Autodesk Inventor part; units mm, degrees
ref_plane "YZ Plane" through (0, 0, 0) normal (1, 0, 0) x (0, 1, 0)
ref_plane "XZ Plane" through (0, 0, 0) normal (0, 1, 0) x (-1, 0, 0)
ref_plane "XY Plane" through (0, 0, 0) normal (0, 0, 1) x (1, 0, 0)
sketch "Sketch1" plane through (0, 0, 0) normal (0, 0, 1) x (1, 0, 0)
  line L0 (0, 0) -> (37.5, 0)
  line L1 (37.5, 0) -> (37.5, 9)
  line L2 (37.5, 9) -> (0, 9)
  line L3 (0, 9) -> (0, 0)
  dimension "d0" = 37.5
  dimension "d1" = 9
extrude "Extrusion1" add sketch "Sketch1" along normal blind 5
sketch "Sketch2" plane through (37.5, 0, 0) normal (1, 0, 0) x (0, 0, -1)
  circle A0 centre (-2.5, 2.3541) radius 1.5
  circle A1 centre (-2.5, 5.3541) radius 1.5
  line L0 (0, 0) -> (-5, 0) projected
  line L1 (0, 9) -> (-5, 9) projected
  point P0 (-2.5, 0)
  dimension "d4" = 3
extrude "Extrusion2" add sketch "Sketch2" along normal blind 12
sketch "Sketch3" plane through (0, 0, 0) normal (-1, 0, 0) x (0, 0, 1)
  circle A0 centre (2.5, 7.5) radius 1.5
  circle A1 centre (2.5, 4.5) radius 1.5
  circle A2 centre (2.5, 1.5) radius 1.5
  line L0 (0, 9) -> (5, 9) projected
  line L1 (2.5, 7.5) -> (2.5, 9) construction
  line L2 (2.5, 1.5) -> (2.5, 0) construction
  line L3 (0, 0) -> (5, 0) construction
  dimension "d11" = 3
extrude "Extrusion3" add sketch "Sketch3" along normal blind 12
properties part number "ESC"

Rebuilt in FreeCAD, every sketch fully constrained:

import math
import FreeCAD as App
import Part
import Sketcher
from FreeCAD import Vector


def add_polygon(sketch, points):
    """Adds a closed chain of lines whose ends are joined by coincident constraints."""
    first, n = sketch.GeometryCount, len(points)
    for a, b in zip(points, points[1:] + points[:1]):
        sketch.addGeometry(Part.LineSegment(App.Vector(*a, 0), App.Vector(*b, 0)), False)
    for i in range(n):
        sketch.addConstraint(Sketcher.Constraint("Coincident", first + i, 2, first + (i + 1) % n, 1))

doc = App.newDocument("Part")
params = doc.addObject("Spreadsheet::Sheet", "Params")
for row, (alias, value) in enumerate([
    ("sketch1_height", "9 mm"),
    ("sketch1_width", "37.5 mm"),
    ("pad1_length", "5 mm"),
    ("sketch2_diameter", "3 mm"),
    ("pad2_length", "12 mm"),
    ("sketch3_diameter", "3 mm"),
    ("pad3_length", "12 mm"),
], start=1):
    params.set(f"A{row}", alias)
    params.set(f"B{row}", "=" + value)
    params.setAlias(f"B{row}", alias)

body = doc.addObject("PartDesign::Body", "Body")

sketch1 = body.newObject("Sketcher::SketchObject", "Sketch")
sketch1.AttachmentSupport = (doc.getObject("XY_Plane"), [""])
sketch1.MapMode = "FlatFace"
add_polygon(sketch1, [(0, 9), (0, 0), (37.5, 0), (37.5, 9)])
sketch1.addConstraint([
    Sketcher.Constraint("Vertical", 0),
    Sketcher.Constraint("Horizontal", 1),
    Sketcher.Constraint("Vertical", 2),
    Sketcher.Constraint("Horizontal", 3),
    Sketcher.Constraint("Coincident", 0, 2, -1, 1),
    Sketcher.Constraint("DistanceY", 0, 2, 0, 1, 9.0),
    Sketcher.Constraint("DistanceX", 1, 1, 1, 2, 37.5),
])
sketch1.setExpression("Constraints[9]", "Params.sketch1_height")
sketch1.setExpression("Constraints[10]", "Params.sketch1_width")
pad1 = body.newObject("PartDesign::Pad", "Pad")
pad1.Profile = sketch1
pad1.setExpression("Length", "Params.pad1_length")

sketch2 = body.newObject("Sketcher::SketchObject", "Sketch001")
sketch2.AttachmentSupport = (doc.getObject("YZ_Plane"), [""])
sketch2.MapMode = "FlatFace"
sketch2.AttachmentOffset = App.Placement(Vector(0, 0, 37.5), App.Rotation())
sketch2.addGeometry([
    Part.Circle(Vector(2.3541, 2.5, 0), Vector(0, 0, 1), 1.5),
    Part.Circle(Vector(5.3541, 2.5, 0), Vector(0, 0, 1), 1.5),
], False)
sketch2.addConstraint([
    Sketcher.Constraint("Equal", 0, 1),
    Sketcher.Constraint("Horizontal", 0, 3, 1, 3),
    Sketcher.Constraint("Diameter", 0, 3.0),
    Sketcher.Constraint("DistanceX", 0, 3, 1, 3, 3.0),
    Sketcher.Constraint("DistanceY", -1, 1, 0, 3, 2.5),
    Sketcher.Constraint("DistanceX", -1, 1, 0, 3, 2.354),
])
sketch2.setExpression("Constraints[2]", "Params.sketch2_diameter")
pad2 = body.newObject("PartDesign::Pad", "Pad001")
pad2.Profile = sketch2
pad2.setExpression("Length", "Params.pad2_length")

sketch3 = body.newObject("Sketcher::SketchObject", "Sketch002")
sketch3.AttachmentSupport = (doc.getObject("YZ_Plane"), [""])
sketch3.MapMode = "FlatFace"
sketch3.addGeometry([
    Part.Circle(Vector(7.5, 2.5, 0), Vector(0, 0, 1), 1.5),
    Part.Circle(Vector(1.5, 2.5, 0), Vector(0, 0, 1), 1.5),
    Part.ArcOfCircle(Part.Circle(Vector(4.5, 2.5, 0), Vector(0, 0, 1), 1.5), math.radians(0), math.radians(180)),
    Part.ArcOfCircle(Part.Circle(Vector(4.5, 2.5, 0), Vector(0, 0, 1), 1.5), math.radians(180), math.radians(360)),
], False)
sketch3.addConstraint([
    Sketcher.Constraint("Tangent", 2, 1, 3, 2),
    Sketcher.Constraint("Coincident", 3, 1, 2, 2),
    Sketcher.Constraint("Equal", 0, 1),
    Sketcher.Constraint("Equal", 1, 2),
    Sketcher.Constraint("Horizontal", 0, 3, 1, 3),
    Sketcher.Constraint("Horizontal", 1, 3, 2, 3),
    Sketcher.Constraint("Horizontal", 3, 3, 2, 1),
    Sketcher.Constraint("Horizontal", 2, 1, 3, 1),
    Sketcher.Constraint("Diameter", 0, 3.0),
    Sketcher.Constraint("DistanceX", -1, 1, 3, 1, 3.0),
    Sketcher.Constraint("DistanceX", 2, 3, 0, 3, 3.0),
    Sketcher.Constraint("DistanceX", 1, 3, 2, 3, 3.0),
    Sketcher.Constraint("DistanceY", -1, 1, 0, 3, 2.5),
])
sketch3.setExpression("Constraints[8]", "Params.sketch3_diameter")
pad3 = body.newObject("PartDesign::Pad", "Pad002")
pad3.Profile = sketch3
pad3.setExpression("Length", "Params.pad3_length")
pad3.Reversed = True

doc.recompute()
